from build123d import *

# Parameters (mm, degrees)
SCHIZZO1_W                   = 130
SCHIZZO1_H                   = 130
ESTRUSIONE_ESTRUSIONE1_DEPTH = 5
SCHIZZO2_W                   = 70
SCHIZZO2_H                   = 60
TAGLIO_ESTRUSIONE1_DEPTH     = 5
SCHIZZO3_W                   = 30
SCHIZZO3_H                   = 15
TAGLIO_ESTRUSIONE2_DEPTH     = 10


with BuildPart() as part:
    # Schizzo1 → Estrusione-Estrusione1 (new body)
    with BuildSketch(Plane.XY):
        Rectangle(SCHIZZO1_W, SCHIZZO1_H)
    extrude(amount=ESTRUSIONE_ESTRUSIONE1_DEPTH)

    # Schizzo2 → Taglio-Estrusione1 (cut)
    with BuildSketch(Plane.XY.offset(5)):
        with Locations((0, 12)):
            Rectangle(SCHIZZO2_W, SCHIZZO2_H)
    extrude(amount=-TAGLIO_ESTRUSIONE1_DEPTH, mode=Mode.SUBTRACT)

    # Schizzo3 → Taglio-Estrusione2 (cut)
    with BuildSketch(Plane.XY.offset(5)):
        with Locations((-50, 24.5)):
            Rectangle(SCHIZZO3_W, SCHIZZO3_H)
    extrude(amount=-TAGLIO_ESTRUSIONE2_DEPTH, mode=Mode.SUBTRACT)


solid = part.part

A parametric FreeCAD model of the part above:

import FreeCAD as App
import Part
import Sketcher
Q = App.Units.Quantity


def add_polygon(sketch, points):
    """Adds a closed chain of lines whose ends are joined by coincident constraints."""
    first, n = sketch.GeometryCount, len(points)
    for a, b in zip(points, points[1:] + points[:1]):
        sketch.addGeometry(Part.LineSegment(App.Vector(*a, 0), App.Vector(*b, 0)), False)
    for i in range(n):
        sketch.addConstraint(Sketcher.Constraint("Coincident", first + i, 2, first + (i + 1) % n, 1))

doc = App.newDocument("Part")
body = doc.addObject("PartDesign::Body", "Body")

# Sketch on XY plane
sketch1 = body.newObject("Sketcher::SketchObject", "Sketch")
sketch1.AttachmentSupport = (doc.getObject("XY_Plane"), [""])
sketch1.MapMode = "FlatFace"
add_polygon(sketch1, [(-65, 65), (-65, -65), (65, -65), (65, 65)])  # lines 0-3
sketch1.addConstraint(Sketcher.Constraint("Vertical", 0))
sketch1.addConstraint(Sketcher.Constraint("Horizontal", 1))
sketch1.addConstraint(Sketcher.Constraint("Vertical", 2))
sketch1.addConstraint(Sketcher.Constraint("Horizontal", 3))
sketch1.addConstraint(Sketcher.Constraint("Symmetric", 0, 2, 2, 2, -1, 1))
sketch1.addConstraint(Sketcher.Constraint("Equal", 3, 0))
sketch1.addConstraint(Sketcher.Constraint("DistanceX", 1, 1, 1, 2, Q("130 mm")))
pad1 = body.newObject("PartDesign::Pad", "Pad")
pad1.Profile = sketch1
pad1.Length = 5

# Sketch on XY plane
sketch2 = body.newObject("Sketcher::SketchObject", "Sketch001")
sketch2.AttachmentSupport = (doc.getObject("XY_Plane"), [""])
sketch2.MapMode = "FlatFace"
sketch2.AttachmentOffset = App.Placement(App.Vector(0, 0, 5), App.Rotation())
add_polygon(sketch2, [(-35, 42), (-35, -18), (35, -18), (35, 42)])  # lines 0-3
sketch2.addConstraint(Sketcher.Constraint("Vertical", 0))
sketch2.addConstraint(Sketcher.Constraint("Horizontal", 1))
sketch2.addConstraint(Sketcher.Constraint("Vertical", 2))
sketch2.addConstraint(Sketcher.Constraint("Horizontal", 3))
sketch2.addConstraint(Sketcher.Constraint("DistanceX", 1, 1, 1, 2, Q("70 mm")))
sketch2.addConstraint(Sketcher.Constraint("DistanceY", 0, 2, 0, 1, Q("60 mm")))
sketch2.addConstraint(Sketcher.Constraint("DistanceX", 0, 2, -1, 1, Q("35 mm")))
sketch2.addConstraint(Sketcher.Constraint("DistanceY", 0, 2, -1, 1, Q("18 mm")))
pocket1 = body.newObject("PartDesign::Pocket", "Pocket")
pocket1.Profile = sketch2
pocket1.Length = 5

# Sketch on XY plane
sketch3 = body.newObject("Sketcher::SketchObject", "Sketch002")
sketch3.AttachmentSupport = (doc.getObject("XY_Plane"), [""])
sketch3.MapMode = "FlatFace"
sketch3.AttachmentOffset = App.Placement(App.Vector(0, 0, 5), App.Rotation())
add_polygon(sketch3, [(-65, 32), (-65, 17), (-35, 17), (-35, 32)])  # lines 0-3
sketch3.addConstraint(Sketcher.Constraint("Vertical", 0))
sketch3.addConstraint(Sketcher.Constraint("Horizontal", 1))
sketch3.addConstraint(Sketcher.Constraint("Vertical", 2))
sketch3.addConstraint(Sketcher.Constraint("Horizontal", 3))
sketch3.addConstraint(Sketcher.Constraint("DistanceX", 1, 1, 1, 2, Q("30 mm")))
sketch3.addConstraint(Sketcher.Constraint("DistanceY", 0, 2, 0, 1, Q("15 mm")))
sketch3.addConstraint(Sketcher.Constraint("DistanceX", 0, 2, -1, 1, Q("65 mm")))
sketch3.addConstraint(Sketcher.Constraint("DistanceY", -1, 1, 0, 2, Q("17 mm")))
pocket2 = body.newObject("PartDesign::Pocket", "Pocket001")
pocket2.Profile = sketch3
pocket2.Length = 10

doc.recompute()
